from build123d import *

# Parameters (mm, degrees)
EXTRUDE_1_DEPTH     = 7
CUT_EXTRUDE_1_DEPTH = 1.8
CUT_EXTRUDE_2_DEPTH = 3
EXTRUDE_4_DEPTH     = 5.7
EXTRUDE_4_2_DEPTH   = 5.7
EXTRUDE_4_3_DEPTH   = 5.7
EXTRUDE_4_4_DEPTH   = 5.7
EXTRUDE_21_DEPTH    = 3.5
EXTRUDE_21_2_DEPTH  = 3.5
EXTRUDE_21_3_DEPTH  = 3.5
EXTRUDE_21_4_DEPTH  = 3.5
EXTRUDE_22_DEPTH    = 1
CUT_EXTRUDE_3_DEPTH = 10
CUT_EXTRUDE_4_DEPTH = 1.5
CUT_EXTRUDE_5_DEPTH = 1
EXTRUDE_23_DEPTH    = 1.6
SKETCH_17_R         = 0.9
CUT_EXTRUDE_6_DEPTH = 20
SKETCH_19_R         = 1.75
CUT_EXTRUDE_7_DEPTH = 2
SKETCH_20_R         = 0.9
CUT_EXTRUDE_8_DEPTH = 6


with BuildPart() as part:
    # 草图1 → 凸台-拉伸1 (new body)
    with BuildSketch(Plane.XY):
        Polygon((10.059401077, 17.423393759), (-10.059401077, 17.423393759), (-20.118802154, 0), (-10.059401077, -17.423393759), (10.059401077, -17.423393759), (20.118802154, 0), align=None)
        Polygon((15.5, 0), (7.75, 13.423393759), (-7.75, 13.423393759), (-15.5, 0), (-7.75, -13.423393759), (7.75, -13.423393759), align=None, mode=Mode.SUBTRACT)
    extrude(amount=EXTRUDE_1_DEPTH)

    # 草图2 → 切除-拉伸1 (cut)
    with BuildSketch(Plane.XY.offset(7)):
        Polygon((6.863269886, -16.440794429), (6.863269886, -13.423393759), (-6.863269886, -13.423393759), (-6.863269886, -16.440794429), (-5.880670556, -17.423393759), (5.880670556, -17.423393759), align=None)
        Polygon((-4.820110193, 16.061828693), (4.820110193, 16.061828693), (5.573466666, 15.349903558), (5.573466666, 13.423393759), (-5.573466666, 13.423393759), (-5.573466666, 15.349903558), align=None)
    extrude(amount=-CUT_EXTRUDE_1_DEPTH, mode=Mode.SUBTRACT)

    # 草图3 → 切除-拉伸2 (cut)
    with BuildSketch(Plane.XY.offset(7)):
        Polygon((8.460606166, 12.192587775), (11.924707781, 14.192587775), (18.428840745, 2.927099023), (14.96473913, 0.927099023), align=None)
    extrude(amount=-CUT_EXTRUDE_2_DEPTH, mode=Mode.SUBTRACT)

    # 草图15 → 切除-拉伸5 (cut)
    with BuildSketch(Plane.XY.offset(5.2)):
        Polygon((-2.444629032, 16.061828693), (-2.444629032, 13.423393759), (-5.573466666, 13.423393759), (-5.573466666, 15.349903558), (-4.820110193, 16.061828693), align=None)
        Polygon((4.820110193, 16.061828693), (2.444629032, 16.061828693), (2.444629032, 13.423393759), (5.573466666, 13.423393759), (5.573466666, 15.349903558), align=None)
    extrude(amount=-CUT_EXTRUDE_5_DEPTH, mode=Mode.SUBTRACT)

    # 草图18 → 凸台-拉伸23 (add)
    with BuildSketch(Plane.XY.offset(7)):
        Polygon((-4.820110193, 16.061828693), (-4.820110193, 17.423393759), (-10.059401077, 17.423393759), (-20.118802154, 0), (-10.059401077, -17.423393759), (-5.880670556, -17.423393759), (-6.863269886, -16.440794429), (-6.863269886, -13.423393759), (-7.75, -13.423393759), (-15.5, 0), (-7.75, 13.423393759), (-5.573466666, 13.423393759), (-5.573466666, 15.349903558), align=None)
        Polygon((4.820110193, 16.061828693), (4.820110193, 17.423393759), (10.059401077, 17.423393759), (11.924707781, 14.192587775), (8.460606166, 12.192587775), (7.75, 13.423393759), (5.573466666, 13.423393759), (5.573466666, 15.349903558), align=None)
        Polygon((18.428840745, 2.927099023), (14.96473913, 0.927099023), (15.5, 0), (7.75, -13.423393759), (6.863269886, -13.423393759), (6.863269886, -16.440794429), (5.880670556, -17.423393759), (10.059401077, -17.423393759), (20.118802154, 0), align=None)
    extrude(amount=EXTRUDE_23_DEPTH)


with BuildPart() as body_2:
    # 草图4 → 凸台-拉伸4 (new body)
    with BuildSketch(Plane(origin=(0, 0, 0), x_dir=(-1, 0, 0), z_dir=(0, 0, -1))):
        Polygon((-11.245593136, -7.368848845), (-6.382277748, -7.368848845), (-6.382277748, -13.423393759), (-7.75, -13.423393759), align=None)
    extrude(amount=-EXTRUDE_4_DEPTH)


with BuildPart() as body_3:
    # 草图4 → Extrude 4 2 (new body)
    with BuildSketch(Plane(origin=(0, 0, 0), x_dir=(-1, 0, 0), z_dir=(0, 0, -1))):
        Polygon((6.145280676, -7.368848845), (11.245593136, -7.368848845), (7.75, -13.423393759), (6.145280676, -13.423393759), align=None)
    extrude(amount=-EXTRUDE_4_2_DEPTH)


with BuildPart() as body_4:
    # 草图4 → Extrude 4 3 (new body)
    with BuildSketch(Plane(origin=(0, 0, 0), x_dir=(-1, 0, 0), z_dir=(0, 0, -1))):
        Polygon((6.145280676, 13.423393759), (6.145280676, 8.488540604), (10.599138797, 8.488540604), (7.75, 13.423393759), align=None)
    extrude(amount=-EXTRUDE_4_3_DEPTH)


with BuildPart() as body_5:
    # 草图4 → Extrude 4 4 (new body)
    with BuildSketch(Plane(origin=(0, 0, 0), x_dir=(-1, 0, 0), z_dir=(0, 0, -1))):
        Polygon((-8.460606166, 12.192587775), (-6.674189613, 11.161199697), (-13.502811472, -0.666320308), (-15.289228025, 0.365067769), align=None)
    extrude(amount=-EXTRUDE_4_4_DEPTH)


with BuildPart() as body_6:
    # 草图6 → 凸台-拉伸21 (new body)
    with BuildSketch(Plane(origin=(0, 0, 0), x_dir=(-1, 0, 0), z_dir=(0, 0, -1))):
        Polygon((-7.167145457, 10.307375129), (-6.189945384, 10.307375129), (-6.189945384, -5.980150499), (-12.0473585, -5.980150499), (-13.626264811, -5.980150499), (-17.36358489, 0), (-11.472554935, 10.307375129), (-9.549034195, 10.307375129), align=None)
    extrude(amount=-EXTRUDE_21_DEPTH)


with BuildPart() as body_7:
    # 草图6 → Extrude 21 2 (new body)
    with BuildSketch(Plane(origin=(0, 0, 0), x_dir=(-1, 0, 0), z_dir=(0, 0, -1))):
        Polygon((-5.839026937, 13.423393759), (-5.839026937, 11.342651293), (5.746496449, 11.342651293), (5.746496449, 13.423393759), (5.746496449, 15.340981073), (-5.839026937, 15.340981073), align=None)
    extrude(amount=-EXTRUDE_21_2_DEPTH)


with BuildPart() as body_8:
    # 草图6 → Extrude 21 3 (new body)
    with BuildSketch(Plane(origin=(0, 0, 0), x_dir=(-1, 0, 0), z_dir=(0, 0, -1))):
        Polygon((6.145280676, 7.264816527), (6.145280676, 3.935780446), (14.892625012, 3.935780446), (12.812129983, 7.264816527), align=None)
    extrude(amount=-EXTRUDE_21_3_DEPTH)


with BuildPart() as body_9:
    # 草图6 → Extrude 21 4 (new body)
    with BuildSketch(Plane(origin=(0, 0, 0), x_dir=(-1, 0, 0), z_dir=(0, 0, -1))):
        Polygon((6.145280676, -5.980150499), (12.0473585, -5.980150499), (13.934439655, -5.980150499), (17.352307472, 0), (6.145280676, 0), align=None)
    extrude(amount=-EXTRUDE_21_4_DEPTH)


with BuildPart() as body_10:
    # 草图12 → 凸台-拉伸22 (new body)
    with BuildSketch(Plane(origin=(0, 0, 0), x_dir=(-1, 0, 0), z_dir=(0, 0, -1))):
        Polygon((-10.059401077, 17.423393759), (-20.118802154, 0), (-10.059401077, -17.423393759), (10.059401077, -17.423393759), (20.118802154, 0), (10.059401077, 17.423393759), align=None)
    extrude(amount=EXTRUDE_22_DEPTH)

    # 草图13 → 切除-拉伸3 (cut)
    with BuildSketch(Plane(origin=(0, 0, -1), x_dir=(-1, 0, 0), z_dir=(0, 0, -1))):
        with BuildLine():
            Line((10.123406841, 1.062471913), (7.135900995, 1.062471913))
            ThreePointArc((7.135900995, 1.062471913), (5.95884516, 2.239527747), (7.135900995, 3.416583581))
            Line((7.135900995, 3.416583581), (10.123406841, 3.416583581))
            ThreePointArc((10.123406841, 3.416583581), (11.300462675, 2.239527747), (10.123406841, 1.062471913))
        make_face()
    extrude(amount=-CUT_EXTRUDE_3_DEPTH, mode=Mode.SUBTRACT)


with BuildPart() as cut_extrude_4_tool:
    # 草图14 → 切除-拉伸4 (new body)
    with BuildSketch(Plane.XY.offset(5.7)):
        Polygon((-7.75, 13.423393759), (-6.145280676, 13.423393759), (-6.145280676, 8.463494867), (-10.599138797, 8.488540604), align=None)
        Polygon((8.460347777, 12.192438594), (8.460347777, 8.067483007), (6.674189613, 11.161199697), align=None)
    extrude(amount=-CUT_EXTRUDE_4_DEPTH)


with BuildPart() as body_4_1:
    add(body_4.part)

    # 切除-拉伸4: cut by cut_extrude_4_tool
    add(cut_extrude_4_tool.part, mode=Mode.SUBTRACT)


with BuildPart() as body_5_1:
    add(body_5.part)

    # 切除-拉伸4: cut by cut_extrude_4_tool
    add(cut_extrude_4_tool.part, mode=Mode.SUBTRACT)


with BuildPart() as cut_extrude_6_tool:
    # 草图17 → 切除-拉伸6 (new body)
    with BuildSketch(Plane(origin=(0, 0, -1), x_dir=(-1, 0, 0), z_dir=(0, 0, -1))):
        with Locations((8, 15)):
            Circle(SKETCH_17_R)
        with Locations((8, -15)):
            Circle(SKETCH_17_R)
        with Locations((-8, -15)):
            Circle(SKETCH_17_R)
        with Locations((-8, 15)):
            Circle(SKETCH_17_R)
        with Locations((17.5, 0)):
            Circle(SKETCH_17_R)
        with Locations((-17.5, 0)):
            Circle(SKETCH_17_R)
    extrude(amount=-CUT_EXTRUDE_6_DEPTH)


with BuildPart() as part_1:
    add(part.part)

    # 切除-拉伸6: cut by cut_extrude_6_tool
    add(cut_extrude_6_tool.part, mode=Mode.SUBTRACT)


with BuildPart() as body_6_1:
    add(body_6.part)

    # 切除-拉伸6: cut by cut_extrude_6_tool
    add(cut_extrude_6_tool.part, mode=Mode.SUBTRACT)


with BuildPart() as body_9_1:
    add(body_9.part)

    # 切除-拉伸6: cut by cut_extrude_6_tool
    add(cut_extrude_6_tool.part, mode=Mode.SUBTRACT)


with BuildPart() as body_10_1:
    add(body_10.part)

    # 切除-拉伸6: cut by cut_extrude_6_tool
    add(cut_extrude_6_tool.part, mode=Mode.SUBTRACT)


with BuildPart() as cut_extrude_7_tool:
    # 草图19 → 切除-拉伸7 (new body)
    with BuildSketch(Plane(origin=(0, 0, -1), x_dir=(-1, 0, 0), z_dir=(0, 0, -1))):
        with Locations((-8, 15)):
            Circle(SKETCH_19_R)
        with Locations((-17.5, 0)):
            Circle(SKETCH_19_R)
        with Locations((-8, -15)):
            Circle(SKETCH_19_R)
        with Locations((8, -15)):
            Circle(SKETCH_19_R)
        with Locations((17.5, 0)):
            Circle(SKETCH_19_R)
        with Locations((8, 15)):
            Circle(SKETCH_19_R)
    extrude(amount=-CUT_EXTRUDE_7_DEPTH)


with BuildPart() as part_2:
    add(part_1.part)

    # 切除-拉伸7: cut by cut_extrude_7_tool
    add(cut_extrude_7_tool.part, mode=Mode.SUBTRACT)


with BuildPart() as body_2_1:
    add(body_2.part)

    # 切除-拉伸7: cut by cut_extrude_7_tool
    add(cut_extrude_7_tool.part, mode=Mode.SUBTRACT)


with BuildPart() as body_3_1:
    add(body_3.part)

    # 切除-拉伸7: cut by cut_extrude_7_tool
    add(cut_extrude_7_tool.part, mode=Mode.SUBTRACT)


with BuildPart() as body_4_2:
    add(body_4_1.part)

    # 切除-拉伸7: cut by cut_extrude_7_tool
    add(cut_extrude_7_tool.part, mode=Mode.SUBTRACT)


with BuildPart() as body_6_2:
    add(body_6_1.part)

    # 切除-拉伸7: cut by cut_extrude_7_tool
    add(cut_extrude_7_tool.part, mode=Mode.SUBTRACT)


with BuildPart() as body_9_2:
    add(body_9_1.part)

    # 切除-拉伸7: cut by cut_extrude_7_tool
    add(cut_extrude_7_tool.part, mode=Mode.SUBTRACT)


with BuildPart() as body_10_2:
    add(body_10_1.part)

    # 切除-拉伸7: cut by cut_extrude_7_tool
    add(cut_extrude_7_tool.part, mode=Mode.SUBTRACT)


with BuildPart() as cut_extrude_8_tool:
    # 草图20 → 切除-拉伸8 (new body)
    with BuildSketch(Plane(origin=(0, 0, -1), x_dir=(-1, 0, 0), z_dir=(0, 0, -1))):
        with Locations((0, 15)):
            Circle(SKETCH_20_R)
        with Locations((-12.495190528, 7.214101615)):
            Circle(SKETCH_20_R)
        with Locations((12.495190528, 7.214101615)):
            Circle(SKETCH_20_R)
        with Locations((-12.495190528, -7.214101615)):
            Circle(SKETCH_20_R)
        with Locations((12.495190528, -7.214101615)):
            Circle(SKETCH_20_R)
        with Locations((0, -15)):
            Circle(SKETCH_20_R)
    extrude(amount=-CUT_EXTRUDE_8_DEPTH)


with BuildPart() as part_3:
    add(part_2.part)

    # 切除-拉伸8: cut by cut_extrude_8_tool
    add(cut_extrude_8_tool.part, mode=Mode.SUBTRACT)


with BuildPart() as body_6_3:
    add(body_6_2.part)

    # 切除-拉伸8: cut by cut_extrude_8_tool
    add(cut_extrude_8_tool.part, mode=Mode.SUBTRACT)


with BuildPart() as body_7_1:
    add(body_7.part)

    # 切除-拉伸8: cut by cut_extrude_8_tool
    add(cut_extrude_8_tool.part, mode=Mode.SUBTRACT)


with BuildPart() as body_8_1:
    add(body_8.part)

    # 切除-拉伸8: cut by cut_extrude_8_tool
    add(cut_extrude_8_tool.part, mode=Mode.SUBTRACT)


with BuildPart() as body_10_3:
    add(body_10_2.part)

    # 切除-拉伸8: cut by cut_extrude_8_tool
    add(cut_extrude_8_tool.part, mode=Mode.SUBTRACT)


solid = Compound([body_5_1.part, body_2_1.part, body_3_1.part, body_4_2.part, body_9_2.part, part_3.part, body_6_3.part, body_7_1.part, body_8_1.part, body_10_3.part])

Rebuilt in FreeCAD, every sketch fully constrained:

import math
import FreeCAD as App
import Part
import Sketcher
Q = App.Units.Quantity


def add_polygon(sketch, points):
    """Adds a closed chain of lines whose ends are joined by coincident constraints."""
    first, n = sketch.GeometryCount, len(points)
    for a, b in zip(points, points[1:] + points[:1]):
        sketch.addGeometry(Part.LineSegment(App.Vector(*a, 0), App.Vector(*b, 0)), False)
    for i in range(n):
        sketch.addConstraint(Sketcher.Constraint("Coincident", first + i, 2, first + (i + 1) % n, 1))

doc = App.newDocument("Part")
body = doc.addObject("PartDesign::Body", "Body")

sketch1 = body.newObject("Sketcher::SketchObject", "Sketch")
sketch1.AttachmentSupport = (doc.getObject("XY_Plane"), [""])
sketch1.MapMode = "FlatFace"
add_polygon(sketch1, [(10.059401, 17.423394), (-10.059401, 17.423394), (-20.118802, 0), (-10.059401, -17.423394), (10.059401, -17.423394), (20.118802, 0)])
add_polygon(sketch1, [(7.75, 13.423394), (15.5, 0), (7.75, -13.423394), (-7.75, -13.423394), (-15.5, 0), (-7.75, 13.423394)])
sketch1.addConstraint(Sketcher.Constraint("Horizontal", 0))
sketch1.addConstraint(Sketcher.Constraint("Horizontal", 3))
sketch1.addConstraint(Sketcher.Constraint("Horizontal", 8))
sketch1.addConstraint(Sketcher.Constraint("Horizontal", 11))
sketch1.addConstraint(Sketcher.Constraint("Symmetric", 0, 2, 3, 2, -1, 1))
sketch1.addConstraint(Sketcher.Constraint("Symmetric", 1, 2, 4, 2, -1, 1))
sketch1.addConstraint(Sketcher.Constraint("Symmetric", 6, 2, 9, 2, -1, 1))
sketch1.addConstraint(Sketcher.Constraint("Symmetric", 7, 2, 10, 2, -1, 1))
sketch1.addConstraint(Sketcher.Constraint("PointOnObject", 1, 2, -1))
sketch1.addConstraint(Sketcher.Constraint("PointOnObject", 6, 2, -1))
sketch1.addConstraint(Sketcher.Constraint("Parallel", 2, 5))
sketch1.addConstraint(Sketcher.Constraint("Parallel", 5, 6))
sketch1.addConstraint(Sketcher.Constraint("Parallel", 4, 7))
sketch1.addConstraint(Sketcher.Constraint("Parallel", 6, 9))
sketch1.addConstraint(Sketcher.Constraint("Vertical", 0, 2, 2, 2))
sketch1.addConstraint(Sketcher.Constraint("Angle", 1, Q("-120 deg")))
sketch1.addConstraint(Sketcher.Constraint("DistanceX", 8, 2, 8, 1, 15.5))
sketch1.addConstraint(Sketcher.Constraint("DistanceY", 3, 2, 7, 2, 4.0))
sketch1.addConstraint(Sketcher.Constraint("Distance", 6, 15.5))
sketch1.addConstraint(Sketcher.Constraint("DistanceX", 0, 2, -1, 1, 10.059401))
pad1 = body.newObject("PartDesign::Pad", "Pad")
pad1.Profile = sketch1
pad1.Length = 7

sketch2 = body.newObject("Sketcher::SketchObject", "Sketch001")
sketch2.AttachmentSupport = (doc.getObject("XY_Plane"), [""])
sketch2.MapMode = "FlatFace"
sketch2.AttachmentOffset = App.Placement(App.Vector(0, 0, 7), App.Rotation())
add_polygon(sketch2, [(6.86327, -16.440794), (6.86327, -13.423394), (-6.86327, -13.423394), (-6.86327, -16.440794), (-5.880671, -17.423394), (5.880671, -17.423394)])
add_polygon(sketch2, [(4.82011, 16.061829), (-4.82011, 16.061829), (-5.573467, 15.349904), (-5.573467, 13.423394), (5.573467, 13.423394), (5.573467, 15.349904)])
sketch2.addConstraint(Sketcher.Constraint("Vertical", 0))
sketch2.addConstraint(Sketcher.Constraint("Horizontal", 1))
sketch2.addConstraint(Sketcher.Constraint("Vertical", 2))
sketch2.addConstraint(Sketcher.Constraint("Horizontal", 4))
sketch2.addConstraint(Sketcher.Constraint("Horizontal", 6))
sketch2.addConstraint(Sketcher.Constraint("Vertical", 8))
sketch2.addConstraint(Sketcher.Constraint("Horizontal", 9))
sketch2.addConstraint(Sketcher.Constraint("Vertical", 10))
sketch2.addConstraint(Sketcher.Constraint("Symmetric", 2, 2, 5, 2, -2))
sketch2.addConstraint(Sketcher.Constraint("Symmetric", 7, 2, 10, 2, -2))
sketch2.addConstraint(Sketcher.Constraint("Perpendicular", 3, 5))
sketch2.addConstraint(Sketcher.Constraint("Equal", 3, 5))
sketch2.addConstraint(Sketcher.Constraint("Equal", 7, 11))
sketch2.addConstraint(Sketcher.Constraint("DistanceY", 3, 2, 1, 2, 4.0))
sketch2.addConstraint(Sketcher.Constraint("DistanceY", 0, 1, 0, 2, 3.017401))
sketch2.addConstraint(Sketcher.Constraint("DistanceX", 1, 2, 1, 1, 13.72654))
sketch2.addConstraint(Sketcher.Constraint("DistanceX", 6, 2, 6, 1, 9.64022))
sketch2.addConstraint(Sketcher.Constraint("DistanceY", 8, 2, 8, 1, 1.92651))
sketch2.addConstraint(Sketcher.Constraint("DistanceX", 9, 1, 9, 2, 11.146933))
sketch2.addConstraint(Sketcher.Constraint("DistanceY", -1, 1, 6, 2, 16.061829))
sketch2.addConstraint(Sketcher.Constraint("DistanceY", 2, 2, 8, 2, 29.864188))
sketch2.addConstraint(Sketcher.Constraint("Distance", 7, 1.036525))
pocket1 = body.newObject("PartDesign::Pocket", "Pocket")
pocket1.Profile = sketch2
pocket1.Length = 1.8

sketch3 = body.newObject("Sketcher::SketchObject", "Sketch002")
sketch3.AttachmentSupport = (doc.getObject("XY_Plane"), [""])
sketch3.MapMode = "FlatFace"
sketch3.AttachmentOffset = App.Placement(App.Vector(0, 0, 7), App.Rotation())
add_polygon(sketch3, [(11.924708, 14.192588), (8.460606, 12.192588), (14.964739, 0.927099), (18.428841, 2.927099)])
sketch3.addConstraint(Sketcher.Constraint("Perpendicular", 0, 1))
sketch3.addConstraint(Sketcher.Constraint("Perpendicular", 1, 2))
sketch3.addConstraint(Sketcher.Constraint("Perpendicular", 2, 3))
sketch3.addConstraint(Sketcher.Constraint("Angle", 0, Q("-150 deg")))
sketch3.addConstraint(Sketcher.Constraint("Distance", 0, 4.0))
sketch3.addConstraint(Sketcher.Constraint("DistanceY", -1, 1, 1, 2, 0.927099))
sketch3.addConstraint(Sketcher.Constraint("DistanceX", -1, 1, 1, 2, 14.964739))
sketch3.addConstraint(Sketcher.Constraint("DistanceY", 1, 2, 0, 2, 11.265489))
pocket2 = body.newObject("PartDesign::Pocket", "Pocket001")
pocket2.Profile = sketch3
pocket2.Length = 3

sketch4 = body.newObject("Sketcher::SketchObject", "Sketch003")
sketch4.AttachmentSupport = (doc.getObject("XY_Plane"), [""])
sketch4.MapMode = "FlatFace"
sketch4.AttachmentOffset = App.Placement(App.Vector(0, 0, 5.2), App.Rotation())
add_polygon(sketch4, [(-2.444629, 13.423394), (-2.444629, 16.061829), (-4.82011, 16.061829), (-5.573467, 15.349904), (-5.573467, 13.423394)])
add_polygon(sketch4, [(4.82011, 16.061829), (2.444629, 16.061829), (2.444629, 13.423394), (5.573467, 13.423394), (5.573467, 15.349904)])
sketch4.addConstraint(Sketcher.Constraint("Vertical", 0))
sketch4.addConstraint(Sketcher.Constraint("Horizontal", 1))
sketch4.addConstraint(Sketcher.Constraint("Vertical", 3))
sketch4.addConstraint(Sketcher.Constraint("Horizontal", 4))
sketch4.addConstraint(Sketcher.Constraint("Horizontal", 5))
sketch4.addConstraint(Sketcher.Constraint("Vertical", 6))
sketch4.addConstraint(Sketcher.Constraint("Horizontal", 7))
sketch4.addConstraint(Sketcher.Constraint("Vertical", 8))
sketch4.addConstraint(Sketcher.Constraint("Symmetric", 0, 2, 5, 2, -2))
sketch4.addConstraint(Sketcher.Constraint("Symmetric", 3, 2, 7, 2, -2))
sketch4.addConstraint(Sketcher.Constraint("Horizontal", 2, 2, 8, 2))
sketch4.addConstraint(Sketcher.Constraint("Equal", 1, 5))
sketch4.addConstraint(Sketcher.Constraint("DistanceX", 1, 2, 1, 1, 2.375481))
sketch4.addConstraint(Sketcher.Constraint("DistanceY", 3, 2, 3, 1, 1.92651))
sketch4.addConstraint(Sketcher.Constraint("DistanceX", 4, 1, 4, 2, 3.128838))
sketch4.addConstraint(Sketcher.Constraint("DistanceY", 0, 1, 0, 2, 2.638435))
sketch4.addConstraint(Sketcher.Constraint("DistanceX", 0, 2, -1, 1, 2.444629))
sketch4.addConstraint(Sketcher.Constraint("DistanceY", -1, 1, 0, 2, 16.061829))
pocket3 = body.newObject("PartDesign::Pocket", "Pocket002")
pocket3.Profile = sketch4
pocket3.Length = 1

sketch5 = body.newObject("Sketcher::SketchObject", "Sketch004")
sketch5.AttachmentSupport = (doc.getObject("XY_Plane"), [""])
sketch5.MapMode = "FlatFace"
sketch5.AttachmentOffset = App.Placement(App.Vector(0, 0, 7), App.Rotation())
add_polygon(sketch5, [(-4.82011, 16.061829), (-4.82011, 17.423394), (-10.059401, 17.423394), (-20.118802, 0), (-10.059401, -17.423394), (-5.880671, -17.423394), (-6.86327, -16.440794), (-6.86327, -13.423394), (-7.75, -13.423394), (-15.5, 0), (-7.75, 13.423394), (-5.573467, 13.423394), (-5.573467, 15.349904)])
add_polygon(sketch5, [(4.82011, 17.423394), (4.82011, 16.061829), (5.573467, 15.349904), (5.573467, 13.423394), (7.75, 13.423394), (8.460606, 12.192588), (11.924708, 14.192588), (10.059401, 17.423394)])
add_polygon(sketch5, [(18.428841, 2.927099), (14.964739, 0.927099), (15.5, 0), (7.75, -13.423394), (6.86327, -13.423394), (6.86327, -16.440794), (5.880671, -17.423394), (10.059401, -17.423394), (20.118802, 0)])
sketch5.addConstraint(Sketcher.Constraint("Vertical", 0))
sketch5.addConstraint(Sketcher.Constraint("Horizontal", 1))
sketch5.addConstraint(Sketcher.Constraint("Horizontal", 4))
sketch5.addConstraint(Sketcher.Constraint("Vertical", 6))
sketch5.addConstraint(Sketcher.Constraint("Horizontal", 7))
sketch5.addConstraint(Sketcher.Constraint("Horizontal", 10))
sketch5.addConstraint(Sketcher.Constraint("Vertical", 11))
sketch5.addConstraint(Sketcher.Constraint("Vertical", 13))
sketch5.addConstraint(Sketcher.Constraint("Vertical", 15))
sketch5.addConstraint(Sketcher.Constraint("Horizontal", 16))
sketch5.addConstraint(Sketcher.Constraint("Horizontal", 20))
sketch5.addConstraint(Sketcher.Constraint("Horizontal", 24))
sketch5.addConstraint(Sketcher.Constraint("Vertical", 25))
sketch5.addConstraint(Sketcher.Constraint("Horizontal", 27))
sketch5.addConstraint(Sketcher.Constraint("Symmetric", 7, 2, 16, 2, -1, 1))
sketch5.addConstraint(Sketcher.Constraint("Symmetric", 3, 2, 19, 2, -1, 1))
sketch5.addConstraint(Sketcher.Constraint("Symmetric", 8, 2, 22, 2, -1, 1))
sketch5.addConstraint(Sketcher.Constraint("Symmetric", 9, 2, 23, 2, -1, 1))
sketch5.addConstraint(Sketcher.Constraint("Symmetric", 1, 2, 27, 2, -1, 1))
sketch5.addConstraint(Sketcher.Constraint("Symmetric", 2, 2, 28, 2, -1, 1))
sketch5.addConstraint(Sketcher.Constraint("Symmetric", 12, 2, 13, 2, -2))
sketch5.addConstraint(Sketcher.Constraint("Symmetric", 11, 2, 14, 2, -2))
sketch5.addConstraint(Sketcher.Constraint("Symmetric", 9, 2, 16, 2, -2))
sketch5.addConstraint(Sketcher.Constraint("Symmetric", 1, 2, 19, 2, -2))
sketch5.addConstraint(Sketcher.Constraint("Symmetric", 5, 2, 25, 2, -2))
sketch5.addConstraint(Sketcher.Constraint("PointOnObject", 2, 2, -1))
sketch5.addConstraint(Sketcher.Constraint("PointOnObject", 8, 2, -1))
sketch5.addConstraint(Sketcher.Constraint("Parallel", 3, 8))
sketch5.addConstraint(Sketcher.Constraint("Parallel", 8, 17))
sketch5.addConstraint(Sketcher.Constraint("Perpendicular", 17, 18))
sketch5.addConstraint(Sketcher.Constraint("Perpendicular", 18, 19))
sketch5.addConstraint(Sketcher.Constraint("Perpendicular", 19, 21))
sketch5.addConstraint(Sketcher.Constraint("Perpendicular", 21, 22))
sketch5.addConstraint(Sketcher.Constraint("Perpendicular", 5, 26))
sketch5.addConstraint(Sketcher.Constraint("Parallel", 22, 29))
sketch5.addConstraint(Sketcher.Constraint("Equal", 4, 27))
sketch5.addConstraint(Sketcher.Constraint("Angle", 2, Q("-120 deg")))
sketch5.addConstraint(Sketcher.Constraint("Distance", 18, 4.0))
sketch5.addConstraint(Sketcher.Constraint("DistanceY", 4, 2, 6, 2, 4.0))
sketch5.addConstraint(Sketcher.Constraint("Distance", 8, 15.5))
sketch5.addConstraint(Sketcher.Constraint("DistanceX", 8, 2, -1, 1, 15.5))
sketch5.addConstraint(Sketcher.Constraint("DistanceY", 6, 1, 6, 2, 3.017401))
sketch5.addConstraint(Sketcher.Constraint("DistanceX", 1, 2, 1, 1, 5.239291))
sketch5.addConstraint(Sketcher.Constraint("DistanceX", 4, 1, 4, 2, 4.178731))
sketch5.addConstraint(Sketcher.Constraint("DistanceY", 11, 1, 11, 2, 1.92651))
sketch5.addConstraint(Sketcher.Constraint("DistanceY", -1, 1, 21, 2, 0.927099))
sketch5.addConstraint(Sketcher.Constraint("DistanceX", 10, 1, 10, 2, 2.176533))
sketch5.addConstraint(Sketcher.Constraint("DistanceY", 0, 1, 0, 2, 1.361565))
sketch5.addConstraint(Sketcher.Constraint("DistanceX", 15, 2, 17, 2, 2.887139))
pad2 = body.newObject("PartDesign::Pad", "Pad001")
pad2.Profile = sketch5
pad2.Length = 1.6
body2 = doc.addObject("PartDesign::Body", "Body001")

sketch6 = body2.newObject("Sketcher::SketchObject", "Sketch005")
sketch6.AttachmentSupport = (doc.getObject("XY_Plane001"), [""])
sketch6.MapMode = "FlatFace"
add_polygon(sketch6, [(6.382278, -7.368849), (11.245593, -7.368849), (7.75, -13.423394), (6.382278, -13.423394)])
sketch6.addConstraint(Sketcher.Constraint("Horizontal", 0))
sketch6.addConstraint(Sketcher.Constraint("Horizontal", 2))
sketch6.addConstraint(Sketcher.Constraint("Vertical", 3))
sketch6.addConstraint(Sketcher.Constraint("Angle", 1, Q("-120 deg")))
sketch6.addConstraint(Sketcher.Constraint("DistanceX", -1, 1, 1, 2, 7.75))
sketch6.addConstraint(Sketcher.Constraint("DistanceX", 0, 1, 0, 2, 4.863315))
sketch6.addConstraint(Sketcher.Constraint("DistanceX", 2, 2, 2, 1, 1.367722))
sketch6.addConstraint(Sketcher.Constraint("DistanceY", 0, 2, -1, 1, 7.368849))
pad3 = body2.newObject("PartDesign::Pad", "Pad002")
pad3.Profile = sketch6
pad3.Length = 5.7
body3 = doc.addObject("PartDesign::Body", "Body002")

sketch7 = body3.newObject("Sketcher::SketchObject", "Sketch006")
sketch7.AttachmentSupport = (doc.getObject("XY_Plane002"), [""])
sketch7.MapMode = "FlatFace"
add_polygon(sketch7, [(-11.245593, -7.368849), (-6.145281, -7.368849), (-6.145281, -13.423394), (-7.75, -13.423394)])
sketch7.addConstraint(Sketcher.Constraint("Horizontal", 0))
sketch7.addConstraint(Sketcher.Constraint("Vertical", 1))
sketch7.addConstraint(Sketcher.Constraint("Horizontal", 2))
sketch7.addConstraint(Sketcher.Constraint("Angle", 3, Q("120 deg")))
sketch7.addConstraint(Sketcher.Constraint("DistanceX", 2, 2, -1, 1, 7.75))
sketch7.addConstraint(Sketcher.Constraint("DistanceX", 2, 2, 2, 1, 1.604719))
sketch7.addConstraint(Sketcher.Constraint("DistanceX", 0, 1, 0, 2, 5.100312))
sketch7.addConstraint(Sketcher.Constraint("DistanceY", 0, 2, -1, 1, 7.368849))
pad4 = body3.newObject("PartDesign::Pad", "Pad003")
pad4.Profile = sketch7
pad4.Length = 5.7
body4 = doc.addObject("PartDesign::Body", "Body003")

sketch8 = body4.newObject("Sketcher::SketchObject", "Sketch007")
sketch8.AttachmentSupport = (doc.getObject("XY_Plane003"), [""])
sketch8.MapMode = "FlatFace"
add_polygon(sketch8, [(-6.145281, 13.423394), (-6.145281, 8.488541), (-10.599139, 8.488541), (-7.75, 13.423394)])
sketch8.addConstraint(Sketcher.Constraint("Vertical", 0))
sketch8.addConstraint(Sketcher.Constraint("Horizontal", 1))
sketch8.addConstraint(Sketcher.Constraint("Horizontal", 3))
sketch8.addConstraint(Sketcher.Constraint("Angle", 2, Q("60 deg")))
sketch8.addConstraint(Sketcher.Constraint("DistanceX", 2, 2, -1, 1, 7.75))
sketch8.addConstraint(Sketcher.Constraint("DistanceX", 1, 2, 1, 1, 4.453858))
sketch8.addConstraint(Sketcher.Constraint("DistanceX", 3, 1, 3, 2, 1.604719))
sketch8.addConstraint(Sketcher.Constraint("DistanceY", -1, 1, 0, 2, 8.488541))
pad5 = body4.newObject("PartDesign::Pad", "Pad004")
pad5.Profile = sketch8
pad5.Length = 5.7
body5 = doc.addObject("PartDesign::Body", "Body004")

sketch9 = body5.newObject("Sketcher::SketchObject", "Sketch008")
sketch9.AttachmentSupport = (doc.getObject("XY_Plane004"), [""])
sketch9.MapMode = "FlatFace"
add_polygon(sketch9, [(6.67419, 11.1612), (8.460606, 12.192588), (15.289228, 0.365068), (13.502811, -0.66632)])
sketch9.addConstraint(Sketcher.Constraint("Perpendicular", 0, 1))
sketch9.addConstraint(Sketcher.Constraint("Perpendicular", 1, 2))
sketch9.addConstraint(Sketcher.Constraint("Perpendicular", 2, 3))
sketch9.addConstraint(Sketcher.Constraint("Angle", 0, Q("30 deg")))
sketch9.addConstraint(Sketcher.Constraint("DistanceY", -1, 1, 3, 2, 11.1612))
sketch9.addConstraint(Sketcher.Constraint("DistanceX", -1, 1, 1, 2, 15.289228))
sketch9.addConstraint(Sketcher.Constraint("DistanceX", -1, 1, 2, 2, 13.502811))
sketch9.addConstraint(Sketcher.Constraint("DistanceY", 2, 2, -1, 1, 0.66632))
pad6 = body5.newObject("PartDesign::Pad", "Pad005")
pad6.Profile = sketch9
pad6.Length = 5.7
body6 = doc.addObject("PartDesign::Body", "Body005")

sketch10 = body6.newObject("Sketcher::SketchObject", "Sketch009")
sketch10.AttachmentSupport = (doc.getObject("XY_Plane005"), [""])
sketch10.MapMode = "FlatFace"
add_polygon(sketch10, [(6.189945, 10.307375), (11.472555, 10.307375), (17.363585, 0), (13.626265, -5.98015), (6.189945, -5.98015)])
sketch10.addConstraint(Sketcher.Constraint("Horizontal", 0))
sketch10.addConstraint(Sketcher.Constraint("Horizontal", 3))
sketch10.addConstraint(Sketcher.Constraint("Vertical", 4))
sketch10.addConstraint(Sketcher.Constraint("PointOnObject", 1, 2, -1))
sketch10.addConstraint(Sketcher.Constraint("DistanceX", 0, 1, 0, 2, 5.28261))
sketch10.addConstraint(Sketcher.Constraint("DistanceX", 3, 2, 3, 1, 7.436319))
sketch10.addConstraint(Sketcher.Constraint("DistanceY", 4, 1, 4, 2, 16.287526))
sketch10.addConstraint(Sketcher.Constraint("DistanceY", 2, 2, -1, 1, 5.98015))
sketch10.addConstraint(Sketcher.Constraint("DistanceX", 0, 2, 1, 2, 5.89103))
sketch10.addConstraint(Sketcher.Constraint("DistanceX", -1, 1, 0, 2, 11.472555))
pad7 = body6.newObject("PartDesign::Pad", "Pad006")
pad7.Profile = sketch10
pad7.Length = 3.5
body7 = doc.addObject("PartDesign::Body", "Body006")

sketch11 = body7.newObject("Sketcher::SketchObject", "Sketch010")
sketch11.AttachmentSupport = (doc.getObject("XY_Plane006"), [""])
sketch11.MapMode = "FlatFace"
add_polygon(sketch11, [(5.839027, 11.342651), (-5.746496, 11.342651), (-5.746496, 15.340981), (5.839027, 15.340981)])
sketch11.addConstraint(Sketcher.Constraint("Horizontal", 0))
sketch11.addConstraint(Sketcher.Constraint("Vertical", 1))
sketch11.addConstraint(Sketcher.Constraint("Horizontal", 2))
sketch11.addConstraint(Sketcher.Constraint("Vertical", 3))
sketch11.addConstraint(Sketcher.Constraint("DistanceY", 1, 1, 1, 2, 3.99833))
sketch11.addConstraint(Sketcher.Constraint("DistanceX", 0, 2, 0, 1, 11.585523))
sketch11.addConstraint(Sketcher.Constraint("DistanceY", -1, 1, 0, 2, 11.342651))
sketch11.addConstraint(Sketcher.Constraint("DistanceX", 0, 2, -1, 1, 5.746496))
pad8 = body7.newObject("PartDesign::Pad", "Pad007")
pad8.Profile = sketch11
pad8.Length = 3.5
body8 = doc.addObject("PartDesign::Body", "Body007")

sketch12 = body8.newObject("Sketcher::SketchObject", "Sketch011")
sketch12.AttachmentSupport = (doc.getObject("XY_Plane007"), [""])
sketch12.MapMode = "FlatFace"
add_polygon(sketch12, [(-6.145281, 7.264817), (-6.145281, 3.93578), (-14.892625, 3.93578), (-12.81213, 7.264817)])
sketch12.addConstraint(Sketcher.Constraint("Vertical", 0))
sketch12.addConstraint(Sketcher.Constraint("Horizontal", 1))
sketch12.addConstraint(Sketcher.Constraint("Horizontal", 3))
sketch12.addConstraint(Sketcher.Constraint("DistanceX", 3, 1, 3, 2, 6.666849))
sketch12.addConstraint(Sketcher.Constraint("DistanceX", 1, 2, 1, 1, 8.747344))
sketch12.addConstraint(Sketcher.Constraint("DistanceY", 0, 2, 0, 1, 3.329036))
sketch12.addConstraint(Sketcher.Constraint("DistanceX", 0, 2, -1, 1, 6.145281))
sketch12.addConstraint(Sketcher.Constraint("DistanceY", -1, 1, 0, 2, 3.93578))
pad9 = body8.newObject("PartDesign::Pad", "Pad008")
pad9.Profile = sketch12
pad9.Length = 3.5
body9 = doc.addObject("PartDesign::Body", "Body008")

sketch13 = body9.newObject("Sketcher::SketchObject", "Sketch012")
sketch13.AttachmentSupport = (doc.getObject("XY_Plane008"), [""])
sketch13.MapMode = "FlatFace"
add_polygon(sketch13, [(-6.145281, -5.98015), (-13.93444, -5.98015), (-17.352307, 0), (-6.145281, 0)])
sketch13.addConstraint(Sketcher.Constraint("Horizontal", 0))
sketch13.addConstraint(Sketcher.Constraint("Horizontal", 2))
sketch13.addConstraint(Sketcher.Constraint("Vertical", 3))
sketch13.addConstraint(Sketcher.Constraint("PointOnObject", 1, 2, -1))
sketch13.addConstraint(Sketcher.Constraint("DistanceX", 0, 2, 0, 1, 7.789159))
sketch13.addConstraint(Sketcher.Constraint("DistanceY", 3, 2, 3, 1, 5.98015))
sketch13.addConstraint(Sketcher.Constraint("Distance", 1, 6.887962))
sketch13.addConstraint(Sketcher.Constraint("DistanceX", 0, 2, -1, 1, 13.93444))
pad10 = body9.newObject("PartDesign::Pad", "Pad009")
pad10.Profile = sketch13
pad10.Length = 3.5
body10 = doc.addObject("PartDesign::Body", "Body009")

sketch14 = body10.newObject("Sketcher::SketchObject", "Sketch013")
sketch14.AttachmentSupport = (doc.getObject("XY_Plane009"), [""])
sketch14.MapMode = "FlatFace"
add_polygon(sketch14, [(10.059401, 17.423394), (20.118802, 0), (10.059401, -17.423394), (-10.059401, -17.423394), (-20.118802, 0), (-10.059401, 17.423394)])
sketch14.addConstraint(Sketcher.Constraint("Horizontal", 2))
sketch14.addConstraint(Sketcher.Constraint("Horizontal", 5))
sketch14.addConstraint(Sketcher.Constraint("Symmetric", 0, 2, 3, 2, -1, 1))
sketch14.addConstraint(Sketcher.Constraint("Symmetric", 1, 2, 4, 2, -1, 1))
sketch14.addConstraint(Sketcher.Constraint("PointOnObject", 0, 2, -1))
sketch14.addConstraint(Sketcher.Constraint("Parallel", 0, 3))
sketch14.addConstraint(Sketcher.Constraint("Vertical", 2, 2, 4, 2))
sketch14.addConstraint(Sketcher.Constraint("Angle", 0, Q("-60 deg")))
sketch14.addConstraint(Sketcher.Constraint("DistanceX", -1, 1, 1, 2, 10.059401))
sketch14.addConstraint(Sketcher.Constraint("DistanceX", 1, 2, 0, 2, 10.059401))
pad11 = body10.newObject("PartDesign::Pad", "Pad010")
pad11.Profile = sketch14
pad11.Length = 1
pad11.Reversed = True

sketch15 = body10.newObject("Sketcher::SketchObject", "Sketch014")
sketch15.AttachmentSupport = (doc.getObject("XY_Plane009"), [""])
sketch15.MapMode = "FlatFace"
sketch15.AttachmentOffset = App.Placement(App.Vector(0, 0, -1), App.Rotation())
sketch15.addGeometry(Part.LineSegment(App.Vector(-7.135901, 1.062472, 0), App.Vector(-10.123407, 1.062472, 0)), False)
sketch15.addGeometry(Part.ArcOfCircle(Part.Circle(App.Vector(-10.123407, 2.239528, 0), App.Vector(0, 0, 1), 1.177056), math.radians(90), math.radians(270)), False)
sketch15.addGeometry(Part.LineSegment(App.Vector(-10.123407, 3.416584, 0), App.Vector(-7.135901, 3.416584, 0)), False)
sketch15.addGeometry(Part.ArcOfCircle(Part.Circle(App.Vector(-7.135901, 2.239528, 0), App.Vector(0, 0, 1), 1.177056), math.radians(-90), math.radians(90)), False)
sketch15.addConstraint(Sketcher.Constraint("Tangent", 0, 2, 1, 2))
sketch15.addConstraint(Sketcher.Constraint("Tangent", 1, 1, 2, 1))
sketch15.addConstraint(Sketcher.Constraint("Tangent", 2, 2, 3, 2))
sketch15.addConstraint(Sketcher.Constraint("Tangent", 3, 1, 0, 1))
sketch15.addConstraint(Sketcher.Constraint("Horizontal", 0))
sketch15.addConstraint(Sketcher.Constraint("Horizontal", 2))
sketch15.addConstraint(Sketcher.Constraint("Radius", 1, 1.177056))
sketch15.addConstraint(Sketcher.Constraint("DistanceX", 3, 3, -1, 1, 7.135901))
sketch15.addConstraint(Sketcher.Constraint("DistanceX", 0, 2, 0, 1, 2.987506))
sketch15.addConstraint(Sketcher.Constraint("DistanceY", -1, 1, 0, 2, 1.062472))
pocket4 = body10.newObject("PartDesign::Pocket", "Pocket003")
pocket4.Profile = sketch15
pocket4.Length = 10
pocket4.Reversed = True
body11 = doc.addObject("PartDesign::Body", "Body010")
body11.AllowCompound = True

sketch16 = body11.newObject("Sketcher::SketchObject", "Sketch015")
sketch16.AttachmentSupport = (doc.getObject("XY_Plane010"), [""])
sketch16.MapMode = "FlatFace"
sketch16.AttachmentOffset = App.Placement(App.Vector(0, 0, 5.7), App.Rotation())
add_polygon(sketch16, [(-6.145281, 13.423394), (-7.75, 13.423394), (-10.599139, 8.488541), (-6.145281, 8.463495)])
add_polygon(sketch16, [(8.460348, 8.067483), (8.460348, 12.192439), (6.67419, 11.1612)])
sketch16.addConstraint(Sketcher.Constraint("Horizontal", 0))
sketch16.addConstraint(Sketcher.Constraint("Vertical", 3))
sketch16.addConstraint(Sketcher.Constraint("Vertical", 4))
sketch16.addConstraint(Sketcher.Constraint("Perpendicular", 5, 6))
sketch16.addConstraint(Sketcher.Constraint("Angle", 1, Q("-120 deg")))
sketch16.addConstraint(Sketcher.Constraint("Angle", 5, Q("-150 deg")))
sketch16.addConstraint(Sketcher.Constraint("DistanceX", 0, 2, -1, 1, 7.75))
sketch16.addConstraint(Sketcher.Constraint("DistanceY", 3, 1, 3, 2, 4.959899))
sketch16.addConstraint(Sketcher.Constraint("DistanceX", 0, 2, 0, 1, 1.604719))
sketch16.addConstraint(Sketcher.Constraint("DistanceY", -1, 1, 5, 2, 11.1612))
sketch16.addConstraint(Sketcher.Constraint("Distance", 2, 4.453929))
sketch16.addConstraint(Sketcher.Constraint("DistanceY", 4, 1, 4, 2, 4.124956))
sketch16.addConstraint(Sketcher.Constraint("DistanceY", -1, 1, 1, 2, 8.488541))
sketch16.addConstraint(Sketcher.Constraint("DistanceX", -1, 1, 5, 2, 6.67419))
pad12 = body11.newObject("PartDesign::Pad", "Pad011")
pad12.Profile = sketch16
pad12.Length = 1.5
pad12.Reversed = True
doc.recompute()

body12 = doc.addObject("PartDesign::Body", "Body011")
body12.BaseFeature = body11
boolean = body4.newObject("PartDesign::Boolean", "Boolean")
boolean.Type = "Cut"
boolean.addObjects([body12])
doc.recompute()

boolean2 = body5.newObject("PartDesign::Boolean", "Boolean001")
boolean2.Type = "Cut"
boolean2.addObjects([body11])
body13 = doc.addObject("PartDesign::Body", "Body012")
body13.AllowCompound = True

sketch17 = body13.newObject("Sketcher::SketchObject", "Sketch016")
sketch17.AttachmentSupport = (doc.getObject("XY_Plane012"), [""])
sketch17.MapMode = "FlatFace"
sketch17.AttachmentOffset = App.Placement(App.Vector(0, 0, -1), App.Rotation())
sketch17.addGeometry(Part.Circle(App.Vector(-8, 15, 0), App.Vector(0, 0, 1), 0.9), False)
sketch17.addGeometry(Part.Circle(App.Vector(-8, -15, 0), App.Vector(0, 0, 1), 0.9), False)
sketch17.addGeometry(Part.Circle(App.Vector(8, -15, 0), App.Vector(0, 0, 1), 0.9), False)
sketch17.addGeometry(Part.Circle(App.Vector(8, 15, 0), App.Vector(0, 0, 1), 0.9), False)
sketch17.addGeometry(Part.Circle(App.Vector(-17.5, 0, 0), App.Vector(0, 0, 1), 0.9), False)
sketch17.addGeometry(Part.Circle(App.Vector(17.5, 0, 0), App.Vector(0, 0, 1), 0.9), False)
sketch17.addConstraint(Sketcher.Constraint("Equal", 0, 1))
sketch17.addConstraint(Sketcher.Constraint("Equal", 1, 2))
sketch17.addConstraint(Sketcher.Constraint("Equal", 2, 3))
sketch17.addConstraint(Sketcher.Constraint("Equal", 3, 4))
sketch17.addConstraint(Sketcher.Constraint("Equal", 4, 5))
sketch17.addConstraint(Sketcher.Constraint("Symmetric", 0, 3, 2, 3, -1, 1))
sketch17.addConstraint(Sketcher.Constraint("Symmetric", 1, 3, 3, 3, -1, 1))
sketch17.addConstraint(Sketcher.Constraint("Symmetric", 4, 3, 5, 3, -1, 1))
sketch17.addConstraint(Sketcher.Constraint("Symmetric", 1, 3, 2, 3, -2))
sketch17.addConstraint(Sketcher.Constraint("PointOnObject", 4, 3, -1))
sketch17.addConstraint(Sketcher.Constraint("Diameter", 0, 1.8))
sketch17.addConstraint(Sketcher.Constraint("DistanceX", 0, 3, -1, 1, 8.0))
sketch17.addConstraint(Sketcher.Constraint("DistanceY", -1, 1, 0, 3, 15.0))
sketch17.addConstraint(Sketcher.Constraint("DistanceX", 4, 3, 5, 3, 35.0))
pad13 = body13.newObject("PartDesign::Pad", "Pad012")
pad13.Profile = sketch17
pad13.Length = 20
doc.recompute()

body14 = doc.addObject("PartDesign::Body", "Body013")
body14.BaseFeature = body13
boolean3 = body.newObject("PartDesign::Boolean", "Boolean002")
boolean3.Type = "Cut"
boolean3.addObjects([body14])
doc.recompute()

body15 = doc.addObject("PartDesign::Body", "Body014")
body15.BaseFeature = body13
boolean4 = body6.newObject("PartDesign::Boolean", "Boolean003")
boolean4.Type = "Cut"
boolean4.addObjects([body15])
doc.recompute()

body16 = doc.addObject("PartDesign::Body", "Body015")
body16.BaseFeature = body13
boolean5 = body9.newObject("PartDesign::Boolean", "Boolean004")
boolean5.Type = "Cut"
boolean5.addObjects([body16])
doc.recompute()

boolean6 = body10.newObject("PartDesign::Boolean", "Boolean005")
boolean6.Type = "Cut"
boolean6.addObjects([body13])
body17 = doc.addObject("PartDesign::Body", "Body016")
body17.AllowCompound = True

sketch18 = body17.newObject("Sketcher::SketchObject", "Sketch017")
sketch18.AttachmentSupport = (doc.getObject("XY_Plane016"), [""])
sketch18.MapMode = "FlatFace"
sketch18.AttachmentOffset = App.Placement(App.Vector(0, 0, -1), App.Rotation())
sketch18.addGeometry(Part.Circle(App.Vector(8, 15, 0), App.Vector(0, 0, 1), 1.75), False)
sketch18.addGeometry(Part.Circle(App.Vector(17.5, 0, 0), App.Vector(0, 0, 1), 1.75), False)
sketch18.addGeometry(Part.Circle(App.Vector(8, -15, 0), App.Vector(0, 0, 1), 1.75), False)
sketch18.addGeometry(Part.Circle(App.Vector(-8, -15, 0), App.Vector(0, 0, 1), 1.75), False)
sketch18.addGeometry(Part.Circle(App.Vector(-17.5, 0, 0), App.Vector(0, 0, 1), 1.75), False)
sketch18.addGeometry(Part.Circle(App.Vector(-8, 15, 0), App.Vector(0, 0, 1), 1.75), False)
sketch18.addConstraint(Sketcher.Constraint("Equal", 0, 1))
sketch18.addConstraint(Sketcher.Constraint("Equal", 1, 2))
sketch18.addConstraint(Sketcher.Constraint("Equal", 2, 3))
sketch18.addConstraint(Sketcher.Constraint("Equal", 3, 4))
sketch18.addConstraint(Sketcher.Constraint("Equal", 4, 5))
sketch18.addConstraint(Sketcher.Constraint("Symmetric", 0, 3, 3, 3, -1, 1))
sketch18.addConstraint(Sketcher.Constraint("Symmetric", 1, 3, 4, 3, -1, 1))
sketch18.addConstraint(Sketcher.Constraint("Symmetric", 2, 3, 5, 3, -1, 1))
sketch18.addConstraint(Sketcher.Constraint("Symmetric", 2, 3, 3, 3, -2))
sketch18.addConstraint(Sketcher.Constraint("PointOnObject", 1, 3, -1))
sketch18.addConstraint(Sketcher.Constraint("Diameter", 0, 3.5))
sketch18.addConstraint(Sketcher.Constraint("DistanceX", -1, 1, 0, 3, 8.0))
sketch18.addConstraint(Sketcher.Constraint("DistanceY", -1, 1, 0, 3, 15.0))
sketch18.addConstraint(Sketcher.Constraint("DistanceX", 4, 3, 1, 3, 35.0))
pad14 = body17.newObject("PartDesign::Pad", "Pad013")
pad14.Profile = sketch18
pad14.Length = 2
doc.recompute()

body18 = doc.addObject("PartDesign::Body", "Body017")
body18.BaseFeature = body17
boolean7 = body.newObject("PartDesign::Boolean", "Boolean006")
boolean7.Type = "Cut"
boolean7.addObjects([body18])
doc.recompute()

body19 = doc.addObject("PartDesign::Body", "Body018")
body19.BaseFeature = body17
boolean8 = body2.newObject("PartDesign::Boolean", "Boolean007")
boolean8.Type = "Cut"
boolean8.addObjects([body19])
doc.recompute()

body20 = doc.addObject("PartDesign::Body", "Body019")
body20.BaseFeature = body17
boolean9 = body3.newObject("PartDesign::Boolean", "Boolean008")
boolean9.Type = "Cut"
boolean9.addObjects([body20])
doc.recompute()

body21 = doc.addObject("PartDesign::Body", "Body020")
body21.BaseFeature = body17
boolean10 = body4.newObject("PartDesign::Boolean", "Boolean009")
boolean10.Type = "Cut"
boolean10.addObjects([body21])
doc.recompute()

body22 = doc.addObject("PartDesign::Body", "Body021")
body22.BaseFeature = body17
boolean11 = body6.newObject("PartDesign::Boolean", "Boolean010")
boolean11.Type = "Cut"
boolean11.addObjects([body22])
doc.recompute()

body23 = doc.addObject("PartDesign::Body", "Body022")
body23.BaseFeature = body17
boolean12 = body9.newObject("PartDesign::Boolean", "Boolean011")
boolean12.Type = "Cut"
boolean12.addObjects([body23])
doc.recompute()

boolean13 = body10.newObject("PartDesign::Boolean", "Boolean012")
boolean13.Type = "Cut"
boolean13.addObjects([body17])
body24 = doc.addObject("PartDesign::Body", "Body023")
body24.AllowCompound = True

sketch19 = body24.newObject("Sketcher::SketchObject", "Sketch018")
sketch19.AttachmentSupport = (doc.getObject("XY_Plane023"), [""])
sketch19.MapMode = "FlatFace"
sketch19.AttachmentOffset = App.Placement(App.Vector(0, 0, -1), App.Rotation())
sketch19.addGeometry(Part.Circle(App.Vector(0, 15, 0), App.Vector(0, 0, 1), 0.9), False)
sketch19.addGeometry(Part.Circle(App.Vector(12.495191, 7.214102, 0), App.Vector(0, 0, 1), 0.9), False)
sketch19.addGeometry(Part.Circle(App.Vector(-12.495191, 7.214102, 0), App.Vector(0, 0, 1), 0.9), False)
sketch19.addGeometry(Part.Circle(App.Vector(12.495191, -7.214102, 0), App.Vector(0, 0, 1), 0.9), False)
sketch19.addGeometry(Part.Circle(App.Vector(-12.495191, -7.214102, 0), App.Vector(0, 0, 1), 0.9), False)
sketch19.addGeometry(Part.Circle(App.Vector(0, -15, 0), App.Vector(0, 0, 1), 0.9), False)
sketch19.addConstraint(Sketcher.Constraint("Equal", 0, 1))
sketch19.addConstraint(Sketcher.Constraint("Equal", 1, 2))
sketch19.addConstraint(Sketcher.Constraint("Equal", 2, 3))
sketch19.addConstraint(Sketcher.Constraint("Equal", 3, 4))
sketch19.addConstraint(Sketcher.Constraint("Equal", 4, 5))
sketch19.addConstraint(Sketcher.Constraint("Symmetric", 2, 3, 3, 3, -1, 1))
sketch19.addConstraint(Sketcher.Constraint("Symmetric", 1, 3, 4, 3, -1, 1))
sketch19.addConstraint(Sketcher.Constraint("Symmetric", 0, 3, 5, 3, -1, 1))
sketch19.addConstraint(Sketcher.Constraint("Symmetric", 1, 3, 2, 3, -2))
sketch19.addConstraint(Sketcher.Constraint("PointOnObject", 0, 3, -2))
sketch19.addConstraint(Sketcher.Constraint("Diameter", 0, 1.8))
sketch19.addConstraint(Sketcher.Constraint("DistanceY", -1, 1, 0, 3, 15.0))
sketch19.addConstraint(Sketcher.Constraint("DistanceY", -1, 1, 1, 3, 7.214102))
sketch19.addConstraint(Sketcher.Constraint("DistanceX", -1, 1, 1, 3, 12.495191))
pad15 = body24.newObject("PartDesign::Pad", "Pad014")
pad15.Profile = sketch19
pad15.Length = 6
doc.recompute()

body25 = doc.addObject("PartDesign::Body", "Body024")
body25.BaseFeature = body24
boolean14 = body.newObject("PartDesign::Boolean", "Boolean013")
boolean14.Type = "Cut"
boolean14.addObjects([body25])
doc.recompute()

body26 = doc.addObject("PartDesign::Body", "Body025")
body26.BaseFeature = body24
boolean15 = body6.newObject("PartDesign::Boolean", "Boolean014")
boolean15.Type = "Cut"
boolean15.addObjects([body26])
doc.recompute()

body27 = doc.addObject("PartDesign::Body", "Body026")
body27.BaseFeature = body24
boolean16 = body7.newObject("PartDesign::Boolean", "Boolean015")
boolean16.Type = "Cut"
boolean16.addObjects([body27])
doc.recompute()

body28 = doc.addObject("PartDesign::Body", "Body027")
body28.BaseFeature = body24
boolean17 = body8.newObject("PartDesign::Boolean", "Boolean016")
boolean17.Type = "Cut"
boolean17.addObjects([body28])
doc.recompute()

boolean18 = body10.newObject("PartDesign::Boolean", "Boolean017")
boolean18.Type = "Cut"
boolean18.addObjects([body24])

doc.recompute()
